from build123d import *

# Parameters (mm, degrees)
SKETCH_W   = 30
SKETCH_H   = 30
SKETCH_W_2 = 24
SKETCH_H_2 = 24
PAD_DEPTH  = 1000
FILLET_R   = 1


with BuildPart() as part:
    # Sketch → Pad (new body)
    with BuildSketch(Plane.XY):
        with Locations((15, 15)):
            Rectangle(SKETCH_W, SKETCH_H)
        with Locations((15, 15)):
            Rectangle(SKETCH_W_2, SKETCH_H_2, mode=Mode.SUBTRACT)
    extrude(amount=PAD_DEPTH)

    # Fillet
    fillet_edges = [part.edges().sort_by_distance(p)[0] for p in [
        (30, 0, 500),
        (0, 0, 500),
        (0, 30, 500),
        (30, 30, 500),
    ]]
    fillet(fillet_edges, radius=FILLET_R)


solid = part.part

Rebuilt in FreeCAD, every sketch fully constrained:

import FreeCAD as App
import Part
import Sketcher
from FreeCAD import Vector


def edges_at(feature, points):
    """Names of the edges that pass closest to the given points."""
    edges = feature.Shape.Edges
    near = lambda p: min(range(len(edges)), key=lambda i: edges[i].distToShape(Part.Vertex(*p))[0])
    return sorted({f"Edge{near(p) + 1}" for p in points})

doc = App.newDocument("Part")
params = doc.addObject("Spreadsheet::Sheet", "Params")
for row, (alias, value) in enumerate([
    ("sketch1_width", "30 mm"),
    ("sketch1_width2", "24 mm"),
    ("pad1_length", "1000 mm"),
    ("fillet_radius", "1 mm"),
], start=1):
    params.set(f"A{row}", alias)
    params.set(f"B{row}", "=" + value)
    params.setAlias(f"B{row}", alias)

body = doc.addObject("PartDesign::Body", "Body")

# Sketch on XY plane
sketch1 = doc.addObject("Sketcher::SketchObject", "Sketch")
body.addObject(sketch1)
sketch1.AttachmentSupport = (doc.XY_Plane, [""])
sketch1.MapMode = "FlatFace"
sketch1.addGeometry([
    Part.LineSegment(Vector(0, 30, 0), Vector(0, 0, 0)),  # 0
    Part.LineSegment(Vector(0, 0, 0), Vector(30, 0, 0)),  # 1
    Part.LineSegment(Vector(30, 0, 0), Vector(30, 30, 0)),  # 2
    Part.LineSegment(Vector(30, 30, 0), Vector(0, 30, 0)),  # 3
    Part.LineSegment(Vector(27, 3, 0), Vector(3, 3, 0)),  # 4
    Part.LineSegment(Vector(3, 3, 0), Vector(3, 27, 0)),  # 5
    Part.LineSegment(Vector(3, 27, 0), Vector(27, 27, 0)),  # 6
    Part.LineSegment(Vector(27, 27, 0), Vector(27, 3, 0)),  # 7
], False)
sketch1.addConstraint([
    Sketcher.Constraint("Coincident", 0, 2, 1, 1),
    Sketcher.Constraint("Coincident", 1, 2, 2, 1),
    Sketcher.Constraint("Coincident", 2, 2, 3, 1),
    Sketcher.Constraint("Coincident", 3, 2, 0, 1),
    Sketcher.Constraint("Coincident", 4, 2, 5, 1),
    Sketcher.Constraint("Coincident", 5, 2, 6, 1),
    Sketcher.Constraint("Coincident", 6, 2, 7, 1),
    Sketcher.Constraint("Coincident", 7, 2, 4, 1),
    Sketcher.Constraint("Vertical", 0),
    Sketcher.Constraint("Horizontal", 1),
    Sketcher.Constraint("Vertical", 2),
    Sketcher.Constraint("Horizontal", 3),
    Sketcher.Constraint("Horizontal", 4),
    Sketcher.Constraint("Vertical", 5),
    Sketcher.Constraint("Horizontal", 6),
    Sketcher.Constraint("Vertical", 7),
    Sketcher.Constraint("Coincident", 0, 2, -1, 1),
    Sketcher.Constraint("Equal", 3, 0),
    Sketcher.Constraint("Equal", 6, 5),
    Sketcher.Constraint("DistanceX", 1, 1, 1, 2, 30.0),
    Sketcher.Constraint("DistanceX", 4, 2, 4, 1, 24.0),
    Sketcher.Constraint("DistanceX", -1, 1, 4, 2, 3.0),
    Sketcher.Constraint("DistanceY", -1, 1, 4, 2, 3.0),
])
sketch1.setExpression("Constraints[19]", "Params.sketch1_width")
sketch1.setExpression("Constraints[20]", "Params.sketch1_width2")
pad1 = doc.addObject("PartDesign::Pad", "Pad")
body.addObject(pad1)
pad1.Profile = sketch1
pad1.setExpression("Length", "Params.pad1_length")
doc.recompute()

fillet = doc.addObject("PartDesign::Fillet", "Fillet")
body.addObject(fillet)
fillet.Base = (pad1, edges_at(pad1, [
    (30, 0, 500),
    (0, 0, 500),
    (0, 30, 500),
    (30, 30, 500),
]))
fillet.setExpression("Radius", "Params.fillet_radius")

doc.recompute()
